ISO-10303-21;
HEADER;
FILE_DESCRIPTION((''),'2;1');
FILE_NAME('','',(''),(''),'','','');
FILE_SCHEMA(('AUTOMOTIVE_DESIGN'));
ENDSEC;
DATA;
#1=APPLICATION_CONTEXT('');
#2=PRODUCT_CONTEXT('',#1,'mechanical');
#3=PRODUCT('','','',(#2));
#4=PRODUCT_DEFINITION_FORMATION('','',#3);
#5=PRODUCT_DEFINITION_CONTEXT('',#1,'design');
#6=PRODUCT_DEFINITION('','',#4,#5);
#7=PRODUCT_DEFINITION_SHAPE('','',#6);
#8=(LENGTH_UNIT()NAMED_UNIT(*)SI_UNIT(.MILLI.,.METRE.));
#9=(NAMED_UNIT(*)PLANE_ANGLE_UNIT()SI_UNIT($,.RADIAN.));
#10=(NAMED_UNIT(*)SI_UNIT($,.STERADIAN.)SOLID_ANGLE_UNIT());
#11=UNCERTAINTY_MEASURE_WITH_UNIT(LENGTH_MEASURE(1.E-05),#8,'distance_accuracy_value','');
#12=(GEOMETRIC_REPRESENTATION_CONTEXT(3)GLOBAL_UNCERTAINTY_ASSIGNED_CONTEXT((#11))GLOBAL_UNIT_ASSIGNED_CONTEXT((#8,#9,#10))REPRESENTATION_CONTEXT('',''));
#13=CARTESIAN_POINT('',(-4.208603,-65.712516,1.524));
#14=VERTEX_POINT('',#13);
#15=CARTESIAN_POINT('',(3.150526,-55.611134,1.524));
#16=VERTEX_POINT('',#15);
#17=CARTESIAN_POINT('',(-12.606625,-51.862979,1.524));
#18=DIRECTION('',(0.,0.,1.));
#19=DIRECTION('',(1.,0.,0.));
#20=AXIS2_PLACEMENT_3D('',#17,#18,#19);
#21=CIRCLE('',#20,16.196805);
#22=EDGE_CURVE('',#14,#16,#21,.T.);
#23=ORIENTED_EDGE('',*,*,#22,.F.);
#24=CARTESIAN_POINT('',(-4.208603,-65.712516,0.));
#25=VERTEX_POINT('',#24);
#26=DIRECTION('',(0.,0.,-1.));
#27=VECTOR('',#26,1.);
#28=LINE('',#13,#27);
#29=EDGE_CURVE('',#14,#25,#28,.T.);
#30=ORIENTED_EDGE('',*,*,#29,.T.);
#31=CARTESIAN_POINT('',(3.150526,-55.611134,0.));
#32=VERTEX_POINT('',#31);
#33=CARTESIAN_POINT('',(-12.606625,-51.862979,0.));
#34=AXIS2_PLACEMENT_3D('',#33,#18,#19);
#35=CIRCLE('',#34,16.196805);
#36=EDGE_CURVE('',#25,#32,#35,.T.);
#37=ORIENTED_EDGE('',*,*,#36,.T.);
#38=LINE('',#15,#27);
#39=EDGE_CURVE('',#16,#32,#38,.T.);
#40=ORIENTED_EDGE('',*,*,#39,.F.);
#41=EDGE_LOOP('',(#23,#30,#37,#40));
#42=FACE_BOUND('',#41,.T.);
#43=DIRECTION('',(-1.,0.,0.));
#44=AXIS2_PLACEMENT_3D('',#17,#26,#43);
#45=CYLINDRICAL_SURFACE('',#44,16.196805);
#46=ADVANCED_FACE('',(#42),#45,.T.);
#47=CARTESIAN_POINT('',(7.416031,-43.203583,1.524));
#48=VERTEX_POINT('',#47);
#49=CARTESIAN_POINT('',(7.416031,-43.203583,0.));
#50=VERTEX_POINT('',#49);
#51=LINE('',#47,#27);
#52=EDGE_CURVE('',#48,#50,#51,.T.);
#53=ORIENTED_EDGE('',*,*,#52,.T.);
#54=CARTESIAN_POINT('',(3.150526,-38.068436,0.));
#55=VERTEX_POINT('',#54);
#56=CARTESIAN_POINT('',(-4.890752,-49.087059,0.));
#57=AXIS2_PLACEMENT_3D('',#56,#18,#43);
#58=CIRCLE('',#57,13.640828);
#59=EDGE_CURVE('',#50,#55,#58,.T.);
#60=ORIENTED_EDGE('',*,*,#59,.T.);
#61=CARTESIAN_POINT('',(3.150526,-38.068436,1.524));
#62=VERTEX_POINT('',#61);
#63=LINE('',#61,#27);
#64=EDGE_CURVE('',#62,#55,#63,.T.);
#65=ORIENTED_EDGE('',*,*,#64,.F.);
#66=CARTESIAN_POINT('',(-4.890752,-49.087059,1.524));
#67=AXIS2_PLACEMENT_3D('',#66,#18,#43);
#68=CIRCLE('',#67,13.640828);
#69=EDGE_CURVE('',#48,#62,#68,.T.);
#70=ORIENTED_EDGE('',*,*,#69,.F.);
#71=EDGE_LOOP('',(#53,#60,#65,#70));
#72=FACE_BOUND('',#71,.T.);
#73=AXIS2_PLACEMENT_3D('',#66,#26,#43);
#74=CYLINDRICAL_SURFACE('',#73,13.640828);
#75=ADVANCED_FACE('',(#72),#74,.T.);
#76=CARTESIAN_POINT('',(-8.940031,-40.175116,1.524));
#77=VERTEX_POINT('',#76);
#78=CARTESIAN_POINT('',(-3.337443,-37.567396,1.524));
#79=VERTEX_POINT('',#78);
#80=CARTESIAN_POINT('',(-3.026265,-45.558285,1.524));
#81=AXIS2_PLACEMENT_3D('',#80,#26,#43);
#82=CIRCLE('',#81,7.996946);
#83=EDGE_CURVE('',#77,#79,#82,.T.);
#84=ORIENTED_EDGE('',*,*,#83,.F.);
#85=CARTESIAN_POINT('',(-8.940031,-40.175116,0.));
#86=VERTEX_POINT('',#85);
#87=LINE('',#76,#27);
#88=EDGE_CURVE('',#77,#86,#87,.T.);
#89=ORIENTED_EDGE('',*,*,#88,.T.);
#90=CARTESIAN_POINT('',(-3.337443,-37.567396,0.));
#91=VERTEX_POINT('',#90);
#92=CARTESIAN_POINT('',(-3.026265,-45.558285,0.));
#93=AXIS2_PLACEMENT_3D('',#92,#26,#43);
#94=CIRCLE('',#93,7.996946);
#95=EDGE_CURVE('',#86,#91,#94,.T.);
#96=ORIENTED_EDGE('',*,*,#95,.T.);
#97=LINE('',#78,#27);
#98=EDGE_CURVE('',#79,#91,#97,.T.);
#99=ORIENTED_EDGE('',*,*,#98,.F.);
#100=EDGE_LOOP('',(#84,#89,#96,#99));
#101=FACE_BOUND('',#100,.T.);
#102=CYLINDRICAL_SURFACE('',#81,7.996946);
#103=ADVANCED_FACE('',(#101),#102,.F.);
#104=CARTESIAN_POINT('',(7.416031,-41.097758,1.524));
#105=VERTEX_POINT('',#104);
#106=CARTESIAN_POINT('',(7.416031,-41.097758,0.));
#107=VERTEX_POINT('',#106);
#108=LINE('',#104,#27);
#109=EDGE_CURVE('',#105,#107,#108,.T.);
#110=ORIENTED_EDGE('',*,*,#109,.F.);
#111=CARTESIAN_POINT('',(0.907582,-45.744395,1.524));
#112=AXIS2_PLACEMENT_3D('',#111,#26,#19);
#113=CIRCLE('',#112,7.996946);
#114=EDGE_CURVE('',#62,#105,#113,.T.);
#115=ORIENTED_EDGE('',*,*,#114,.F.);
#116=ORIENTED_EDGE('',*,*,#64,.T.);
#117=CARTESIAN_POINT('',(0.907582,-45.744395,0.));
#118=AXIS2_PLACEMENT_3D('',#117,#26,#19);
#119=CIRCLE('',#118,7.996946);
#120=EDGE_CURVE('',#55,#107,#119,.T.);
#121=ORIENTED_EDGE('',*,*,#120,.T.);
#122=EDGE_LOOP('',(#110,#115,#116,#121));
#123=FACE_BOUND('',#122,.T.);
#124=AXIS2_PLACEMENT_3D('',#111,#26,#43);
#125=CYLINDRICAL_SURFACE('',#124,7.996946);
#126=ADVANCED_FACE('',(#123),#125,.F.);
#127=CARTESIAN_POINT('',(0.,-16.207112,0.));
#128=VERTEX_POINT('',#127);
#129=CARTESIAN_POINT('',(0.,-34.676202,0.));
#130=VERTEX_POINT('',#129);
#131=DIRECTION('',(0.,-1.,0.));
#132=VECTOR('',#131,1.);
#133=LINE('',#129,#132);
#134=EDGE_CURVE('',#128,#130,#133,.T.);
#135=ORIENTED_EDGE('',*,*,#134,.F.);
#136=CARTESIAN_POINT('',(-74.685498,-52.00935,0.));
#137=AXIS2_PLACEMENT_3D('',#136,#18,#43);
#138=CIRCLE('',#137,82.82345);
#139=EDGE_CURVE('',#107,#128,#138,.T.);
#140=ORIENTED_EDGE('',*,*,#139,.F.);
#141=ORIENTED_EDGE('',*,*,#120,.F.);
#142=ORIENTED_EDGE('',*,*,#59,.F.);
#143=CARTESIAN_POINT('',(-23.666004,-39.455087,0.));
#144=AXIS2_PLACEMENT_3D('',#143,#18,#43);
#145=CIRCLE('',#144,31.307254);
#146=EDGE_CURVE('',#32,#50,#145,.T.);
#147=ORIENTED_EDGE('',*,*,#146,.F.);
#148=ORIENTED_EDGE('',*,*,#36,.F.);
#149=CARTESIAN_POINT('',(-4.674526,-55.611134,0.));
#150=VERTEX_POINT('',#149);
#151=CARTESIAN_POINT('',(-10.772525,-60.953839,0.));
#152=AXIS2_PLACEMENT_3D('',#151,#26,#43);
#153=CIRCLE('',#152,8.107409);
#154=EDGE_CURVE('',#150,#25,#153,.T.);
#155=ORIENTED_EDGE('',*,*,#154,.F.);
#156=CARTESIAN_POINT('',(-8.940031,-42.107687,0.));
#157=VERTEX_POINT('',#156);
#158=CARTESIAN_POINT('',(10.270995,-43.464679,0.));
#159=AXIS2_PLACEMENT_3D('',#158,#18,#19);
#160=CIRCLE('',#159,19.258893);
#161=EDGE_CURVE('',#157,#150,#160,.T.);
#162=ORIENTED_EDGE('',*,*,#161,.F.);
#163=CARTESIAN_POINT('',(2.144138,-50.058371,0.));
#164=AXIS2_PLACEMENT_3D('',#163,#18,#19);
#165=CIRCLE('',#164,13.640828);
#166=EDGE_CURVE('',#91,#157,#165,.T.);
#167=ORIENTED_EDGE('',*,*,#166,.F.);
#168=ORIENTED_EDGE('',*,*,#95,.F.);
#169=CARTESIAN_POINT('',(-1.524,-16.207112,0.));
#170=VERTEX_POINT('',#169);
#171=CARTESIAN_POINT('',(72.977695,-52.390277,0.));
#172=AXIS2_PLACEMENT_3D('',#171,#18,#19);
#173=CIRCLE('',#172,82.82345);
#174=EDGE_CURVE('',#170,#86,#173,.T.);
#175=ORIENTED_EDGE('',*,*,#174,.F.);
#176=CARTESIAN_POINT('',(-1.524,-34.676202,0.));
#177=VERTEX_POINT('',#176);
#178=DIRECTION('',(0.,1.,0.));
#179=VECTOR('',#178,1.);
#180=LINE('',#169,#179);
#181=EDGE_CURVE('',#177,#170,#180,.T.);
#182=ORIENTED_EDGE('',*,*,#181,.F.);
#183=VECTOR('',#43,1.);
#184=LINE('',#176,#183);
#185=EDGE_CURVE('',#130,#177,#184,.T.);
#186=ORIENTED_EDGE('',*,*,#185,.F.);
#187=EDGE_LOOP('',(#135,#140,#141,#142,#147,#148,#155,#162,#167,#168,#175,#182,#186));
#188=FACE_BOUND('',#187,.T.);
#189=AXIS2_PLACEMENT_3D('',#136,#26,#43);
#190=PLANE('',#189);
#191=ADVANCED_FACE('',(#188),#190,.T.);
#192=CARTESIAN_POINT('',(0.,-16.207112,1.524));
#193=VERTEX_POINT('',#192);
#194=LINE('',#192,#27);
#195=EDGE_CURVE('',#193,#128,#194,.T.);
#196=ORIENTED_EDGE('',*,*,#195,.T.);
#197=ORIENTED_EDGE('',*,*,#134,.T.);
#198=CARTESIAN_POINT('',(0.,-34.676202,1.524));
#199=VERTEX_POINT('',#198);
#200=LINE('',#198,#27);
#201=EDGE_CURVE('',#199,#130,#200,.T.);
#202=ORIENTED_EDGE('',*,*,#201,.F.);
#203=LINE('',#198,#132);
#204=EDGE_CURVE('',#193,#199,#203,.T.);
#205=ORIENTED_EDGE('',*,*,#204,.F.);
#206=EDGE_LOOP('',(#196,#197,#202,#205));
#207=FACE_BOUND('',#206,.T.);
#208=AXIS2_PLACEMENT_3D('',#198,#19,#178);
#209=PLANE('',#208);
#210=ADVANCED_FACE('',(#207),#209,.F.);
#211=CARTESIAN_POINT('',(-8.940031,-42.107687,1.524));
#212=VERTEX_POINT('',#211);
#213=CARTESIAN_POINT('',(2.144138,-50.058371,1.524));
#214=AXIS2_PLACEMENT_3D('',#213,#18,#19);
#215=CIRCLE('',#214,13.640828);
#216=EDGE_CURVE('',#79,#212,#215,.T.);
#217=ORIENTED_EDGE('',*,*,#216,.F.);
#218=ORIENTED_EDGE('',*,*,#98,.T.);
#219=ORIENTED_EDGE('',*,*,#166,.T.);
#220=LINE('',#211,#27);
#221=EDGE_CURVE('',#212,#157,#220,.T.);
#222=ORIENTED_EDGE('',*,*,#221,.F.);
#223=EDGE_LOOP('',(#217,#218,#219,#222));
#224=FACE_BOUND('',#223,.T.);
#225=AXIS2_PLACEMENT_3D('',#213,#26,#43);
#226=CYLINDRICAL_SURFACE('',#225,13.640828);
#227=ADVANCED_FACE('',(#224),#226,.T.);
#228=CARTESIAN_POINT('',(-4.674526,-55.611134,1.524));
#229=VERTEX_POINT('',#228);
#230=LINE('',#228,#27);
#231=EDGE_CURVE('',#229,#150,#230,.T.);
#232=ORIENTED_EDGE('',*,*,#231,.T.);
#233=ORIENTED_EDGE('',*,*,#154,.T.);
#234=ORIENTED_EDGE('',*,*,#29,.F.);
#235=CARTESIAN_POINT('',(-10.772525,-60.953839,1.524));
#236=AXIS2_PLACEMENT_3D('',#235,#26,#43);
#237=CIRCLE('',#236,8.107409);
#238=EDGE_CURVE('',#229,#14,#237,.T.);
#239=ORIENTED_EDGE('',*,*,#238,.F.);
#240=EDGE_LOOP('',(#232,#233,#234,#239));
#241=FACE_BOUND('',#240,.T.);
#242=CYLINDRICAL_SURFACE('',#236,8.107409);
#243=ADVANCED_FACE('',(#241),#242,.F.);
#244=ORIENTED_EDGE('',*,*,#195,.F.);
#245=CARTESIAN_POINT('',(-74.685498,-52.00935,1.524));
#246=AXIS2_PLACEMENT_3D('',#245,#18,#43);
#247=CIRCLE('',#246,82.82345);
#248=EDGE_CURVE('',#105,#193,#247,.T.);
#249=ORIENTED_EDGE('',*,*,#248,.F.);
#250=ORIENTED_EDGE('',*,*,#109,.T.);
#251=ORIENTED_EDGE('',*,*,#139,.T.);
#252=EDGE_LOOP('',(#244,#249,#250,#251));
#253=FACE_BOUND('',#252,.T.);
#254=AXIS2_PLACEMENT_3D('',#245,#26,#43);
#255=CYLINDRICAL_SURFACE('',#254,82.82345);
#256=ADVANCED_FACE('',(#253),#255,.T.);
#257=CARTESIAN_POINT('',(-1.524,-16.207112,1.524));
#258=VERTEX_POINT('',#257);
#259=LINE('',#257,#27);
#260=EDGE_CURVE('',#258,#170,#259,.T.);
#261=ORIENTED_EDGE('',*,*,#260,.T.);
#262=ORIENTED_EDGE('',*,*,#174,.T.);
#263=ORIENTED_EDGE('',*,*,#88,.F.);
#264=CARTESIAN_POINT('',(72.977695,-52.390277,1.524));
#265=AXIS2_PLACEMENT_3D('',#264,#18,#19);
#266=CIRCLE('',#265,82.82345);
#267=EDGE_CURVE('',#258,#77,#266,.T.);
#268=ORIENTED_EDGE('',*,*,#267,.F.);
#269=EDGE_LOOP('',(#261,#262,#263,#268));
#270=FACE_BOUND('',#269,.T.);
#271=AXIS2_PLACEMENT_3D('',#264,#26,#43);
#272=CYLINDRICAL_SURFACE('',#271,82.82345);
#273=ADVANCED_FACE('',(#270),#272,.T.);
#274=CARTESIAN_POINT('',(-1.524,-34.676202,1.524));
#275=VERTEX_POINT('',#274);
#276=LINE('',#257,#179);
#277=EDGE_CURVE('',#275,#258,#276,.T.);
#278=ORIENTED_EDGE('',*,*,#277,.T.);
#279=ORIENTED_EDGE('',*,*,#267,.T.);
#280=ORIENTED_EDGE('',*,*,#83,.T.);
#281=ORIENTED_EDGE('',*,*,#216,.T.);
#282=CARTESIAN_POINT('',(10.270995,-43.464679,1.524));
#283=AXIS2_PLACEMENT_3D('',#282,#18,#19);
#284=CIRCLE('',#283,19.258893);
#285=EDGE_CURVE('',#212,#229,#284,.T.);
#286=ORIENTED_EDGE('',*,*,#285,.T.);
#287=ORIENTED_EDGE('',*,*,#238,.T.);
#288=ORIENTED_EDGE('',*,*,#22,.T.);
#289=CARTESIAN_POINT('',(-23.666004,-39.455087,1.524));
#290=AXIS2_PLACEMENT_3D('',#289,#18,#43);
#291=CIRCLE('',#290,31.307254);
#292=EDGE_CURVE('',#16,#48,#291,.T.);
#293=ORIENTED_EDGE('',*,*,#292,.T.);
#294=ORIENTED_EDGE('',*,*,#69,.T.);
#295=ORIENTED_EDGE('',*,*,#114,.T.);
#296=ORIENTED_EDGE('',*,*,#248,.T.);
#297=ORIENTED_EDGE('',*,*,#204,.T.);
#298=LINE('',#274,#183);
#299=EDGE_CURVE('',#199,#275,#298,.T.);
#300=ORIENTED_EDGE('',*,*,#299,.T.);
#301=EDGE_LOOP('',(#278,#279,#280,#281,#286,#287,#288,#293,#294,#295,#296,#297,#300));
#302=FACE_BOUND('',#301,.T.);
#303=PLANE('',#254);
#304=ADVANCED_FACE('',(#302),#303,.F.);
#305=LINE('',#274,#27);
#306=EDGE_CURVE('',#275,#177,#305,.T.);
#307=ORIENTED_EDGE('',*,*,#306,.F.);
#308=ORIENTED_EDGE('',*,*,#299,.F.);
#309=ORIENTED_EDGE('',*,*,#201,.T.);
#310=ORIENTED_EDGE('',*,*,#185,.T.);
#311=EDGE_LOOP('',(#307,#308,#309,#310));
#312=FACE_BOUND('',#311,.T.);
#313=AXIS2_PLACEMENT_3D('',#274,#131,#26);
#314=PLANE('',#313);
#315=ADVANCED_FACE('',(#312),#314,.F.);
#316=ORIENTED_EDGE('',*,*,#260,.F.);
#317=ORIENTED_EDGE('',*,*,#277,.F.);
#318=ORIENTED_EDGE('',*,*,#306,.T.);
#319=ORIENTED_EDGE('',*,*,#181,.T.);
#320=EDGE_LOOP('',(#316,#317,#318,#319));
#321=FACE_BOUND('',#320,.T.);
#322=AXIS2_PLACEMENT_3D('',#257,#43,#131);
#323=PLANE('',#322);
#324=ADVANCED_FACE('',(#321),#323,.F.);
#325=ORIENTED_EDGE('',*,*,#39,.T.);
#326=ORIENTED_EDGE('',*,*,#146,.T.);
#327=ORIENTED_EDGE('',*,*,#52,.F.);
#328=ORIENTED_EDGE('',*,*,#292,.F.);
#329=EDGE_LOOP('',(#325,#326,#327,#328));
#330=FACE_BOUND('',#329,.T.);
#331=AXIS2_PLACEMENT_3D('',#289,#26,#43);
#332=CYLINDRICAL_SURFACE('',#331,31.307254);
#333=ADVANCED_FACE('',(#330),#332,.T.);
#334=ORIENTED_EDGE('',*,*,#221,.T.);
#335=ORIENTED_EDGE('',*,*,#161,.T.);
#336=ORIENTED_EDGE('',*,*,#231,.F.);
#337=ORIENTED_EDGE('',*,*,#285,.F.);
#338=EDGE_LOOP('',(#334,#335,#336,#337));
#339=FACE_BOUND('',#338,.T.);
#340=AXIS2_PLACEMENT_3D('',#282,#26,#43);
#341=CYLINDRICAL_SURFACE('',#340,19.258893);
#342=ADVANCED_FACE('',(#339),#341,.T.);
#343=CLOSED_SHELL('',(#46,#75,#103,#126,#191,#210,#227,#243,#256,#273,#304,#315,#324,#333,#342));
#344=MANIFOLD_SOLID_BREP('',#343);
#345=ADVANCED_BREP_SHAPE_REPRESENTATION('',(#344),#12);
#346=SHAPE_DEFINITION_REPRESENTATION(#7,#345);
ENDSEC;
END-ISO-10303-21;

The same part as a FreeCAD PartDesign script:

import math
import FreeCAD as App
import Part
import Sketcher

V = App.Vector
Q = App.Units.Quantity

doc = App.newDocument("Part")
params = doc.addObject("Spreadsheet::Sheet", "Params")
for row, (alias, value) in enumerate([
    ("sketch1_width", "0.06 in"),
    ("pad1_length", "0.06 in"),
], start=1):
    params.set(f"A{row}", alias)
    params.set(f"B{row}", "=" + value)
    params.setAlias(f"B{row}", alias)

body = doc.addObject("PartDesign::Body", "Body")

# Sketch on XY plane
sketch1 = body.newObject("Sketcher::SketchObject", "Sketch")
sketch1.AttachmentSupport = (doc.getObject("XY_Plane"), [""])
sketch1.MapMode = "FlatFace"
sketch1.addGeometry([
    Part.LineSegment(V(0, -34.7, 0), V(-1.5, -34.7, 0)),  # 0
    Part.LineSegment(V(-1.5, -34.7, 0), V(-1.5, -16.2, 0)),  # 1
    Part.ArcOfCircle(Part.Circle(V(73, -52.4, 0), V(0, 0, 1), 82.8), math.radians(154.1), math.radians(171.52)),  # 2
    Part.ArcOfCircle(Part.Circle(V(-3, -45.6, 0), V(0, 0, 1), 8), math.radians(92), math.radians(138)),  # 3
    Part.ArcOfCircle(Part.Circle(V(2.1, -50.1, 0), V(0, 0, 1), 13.6), math.radians(114), math.radians(144)),  # 4
    Part.ArcOfCircle(Part.Circle(V(10.3, -43.5, 0), V(0, 0, 1), 19.3), math.radians(176), math.radians(219)),  # 5
    Part.ArcOfCircle(Part.Circle(V(-10.8, -61, 0), V(0, 0, 1), 8.1), math.radians(-36), math.radians(41)),  # 6
    Part.ArcOfCircle(Part.Circle(V(-12.6, -51.9, 0), V(0, 0, 1), 16.2), math.radians(-59), math.radians(-13)),  # 7
    Part.ArcOfCircle(Part.Circle(V(-23.7, -39.5, 0), V(0, 0, 1), 31.3), math.radians(-31), math.radians(-7)),  # 8
    Part.ArcOfCircle(Part.Circle(V(-4.9, -49.1, 0), V(0, 0, 1), 13.6), math.radians(26), math.radians(54)),  # 9
    Part.ArcOfCircle(Part.Circle(V(0.9, -45.7, 0), V(0, 0, 1), 8), math.radians(36), math.radians(74)),  # 10
    Part.ArcOfCircle(Part.Circle(V(-74.7, -52, 0), V(0, 0, 1), 82.8), math.radians(7.57), math.radians(25.61)),  # 11
    Part.LineSegment(V(0, -16.2, 0), V(0, -34.7, 0)),  # 12
], False)
sketch1.addConstraint([
    Sketcher.Constraint("Coincident", 0, 2, 1, 1),
    Sketcher.Constraint("Coincident", 1, 2, 2, 1),
    Sketcher.Constraint("Coincident", 2, 2, 3, 2),
    Sketcher.Constraint("Coincident", 3, 1, 4, 1),
    Sketcher.Constraint("Coincident", 4, 2, 5, 1),
    Sketcher.Constraint("Coincident", 5, 2, 6, 2),
    Sketcher.Constraint("Coincident", 6, 1, 7, 1),
    Sketcher.Constraint("Coincident", 7, 2, 8, 1),
    Sketcher.Constraint("Coincident", 8, 2, 9, 1),
    Sketcher.Constraint("Coincident", 9, 2, 10, 2),
    Sketcher.Constraint("Coincident", 10, 1, 11, 1),
    Sketcher.Constraint("Coincident", 11, 2, 12, 1),
    Sketcher.Constraint("Coincident", 12, 2, 0, 1),
    Sketcher.Constraint("Horizontal", 0),
    Sketcher.Constraint("Vertical", 1),
    Sketcher.Constraint("Vertical", 12),
    Sketcher.Constraint("Equal", 4, 9),
    Sketcher.Constraint("Equal", 3, 10),
    Sketcher.Constraint("Equal", 2, 11),
    Sketcher.Constraint("PointOnObject", 11, 2, -2),
    Sketcher.Constraint("Horizontal", 5, 2, 7, 2),
    Sketcher.Constraint("Horizontal", 1, 2, 11, 2),
    Sketcher.Constraint("Vertical", 2, 2, 4, 2),
    Sketcher.Constraint("Vertical", 7, 2, 9, 2),
    Sketcher.Constraint("Vertical", 8, 2, 10, 1),
    Sketcher.Constraint("DistanceX", 0, 2, 0, 1, Q("0.06 in")),
    Sketcher.Constraint("Radius", 2, Q("82.82345 mm")),
    Sketcher.Constraint("Radius", 6, Q("8.107409 mm")),
    Sketcher.Constraint("Radius", 3, Q("7.996946 mm")),
    Sketcher.Constraint("Radius", 4, Q("13.640828 mm")),
    Sketcher.Constraint("Radius", 5, Q("19.258893 mm")),
    Sketcher.Constraint("Radius", 7, Q("16.196805 mm")),
    Sketcher.Constraint("Radius", 8, Q("31.307254 mm")),
    Sketcher.Constraint("DistanceX", 8, 2, 5, 3, Q("0.1124002 in")),
    Sketcher.Constraint("DistanceY", 1, 1, 1, 2, Q("18.46909 mm")),
    Sketcher.Constraint("DistanceX", 11, 3, -1, 1, Q("74.685498 mm")),
    Sketcher.Constraint("DistanceY", 0, 2, -1, 1, Q("34.676202 mm")),
    Sketcher.Constraint("DistanceX", 5, 3, 2, 3, Q("62.706699 mm")),
    Sketcher.Constraint("DistanceX", 7, 3, 6, 3, Q("1.834101 mm")),
    Sketcher.Constraint("DistanceY", 7, 3, 5, 3, Q("8.398299 mm")),
    Sketcher.Constraint("DistanceY", 2, 3, 7, 3, Q("0.527298 mm")),
    Sketcher.Constraint("DistanceY", 3, 3, 8, 3, Q("6.103198 mm")),
    Sketcher.Constraint("DistanceX", 8, 3, 5, 3, Q("33.936999 mm")),
    Sketcher.Constraint("DistanceY", 10, 3, 3, 1, Q("8.176999 mm")),
    Sketcher.Constraint("DistanceY", 3, 3, 4, 2, Q("3.450599 mm")),
    Sketcher.Constraint("DistanceX", 6, 3, 5, 2, Q("6.097999 mm")),
    Sketcher.Constraint("DistanceY", 4, 3, -1, 1, Q("50.058371 mm")),
    Sketcher.Constraint("DistanceY", 5, 3, -1, 1, Q("43.464679 mm")),
    Sketcher.Constraint("DistanceY", 6, 3, -1, 1, Q("60.953839 mm")),
])
sketch1.setExpression("Constraints[25]", "Params.sketch1_width")
pad1 = body.newObject("PartDesign::Pad", "Pad")
pad1.Profile = sketch1
pad1.setExpression("Length", "Params.pad1_length")

doc.recompute()
